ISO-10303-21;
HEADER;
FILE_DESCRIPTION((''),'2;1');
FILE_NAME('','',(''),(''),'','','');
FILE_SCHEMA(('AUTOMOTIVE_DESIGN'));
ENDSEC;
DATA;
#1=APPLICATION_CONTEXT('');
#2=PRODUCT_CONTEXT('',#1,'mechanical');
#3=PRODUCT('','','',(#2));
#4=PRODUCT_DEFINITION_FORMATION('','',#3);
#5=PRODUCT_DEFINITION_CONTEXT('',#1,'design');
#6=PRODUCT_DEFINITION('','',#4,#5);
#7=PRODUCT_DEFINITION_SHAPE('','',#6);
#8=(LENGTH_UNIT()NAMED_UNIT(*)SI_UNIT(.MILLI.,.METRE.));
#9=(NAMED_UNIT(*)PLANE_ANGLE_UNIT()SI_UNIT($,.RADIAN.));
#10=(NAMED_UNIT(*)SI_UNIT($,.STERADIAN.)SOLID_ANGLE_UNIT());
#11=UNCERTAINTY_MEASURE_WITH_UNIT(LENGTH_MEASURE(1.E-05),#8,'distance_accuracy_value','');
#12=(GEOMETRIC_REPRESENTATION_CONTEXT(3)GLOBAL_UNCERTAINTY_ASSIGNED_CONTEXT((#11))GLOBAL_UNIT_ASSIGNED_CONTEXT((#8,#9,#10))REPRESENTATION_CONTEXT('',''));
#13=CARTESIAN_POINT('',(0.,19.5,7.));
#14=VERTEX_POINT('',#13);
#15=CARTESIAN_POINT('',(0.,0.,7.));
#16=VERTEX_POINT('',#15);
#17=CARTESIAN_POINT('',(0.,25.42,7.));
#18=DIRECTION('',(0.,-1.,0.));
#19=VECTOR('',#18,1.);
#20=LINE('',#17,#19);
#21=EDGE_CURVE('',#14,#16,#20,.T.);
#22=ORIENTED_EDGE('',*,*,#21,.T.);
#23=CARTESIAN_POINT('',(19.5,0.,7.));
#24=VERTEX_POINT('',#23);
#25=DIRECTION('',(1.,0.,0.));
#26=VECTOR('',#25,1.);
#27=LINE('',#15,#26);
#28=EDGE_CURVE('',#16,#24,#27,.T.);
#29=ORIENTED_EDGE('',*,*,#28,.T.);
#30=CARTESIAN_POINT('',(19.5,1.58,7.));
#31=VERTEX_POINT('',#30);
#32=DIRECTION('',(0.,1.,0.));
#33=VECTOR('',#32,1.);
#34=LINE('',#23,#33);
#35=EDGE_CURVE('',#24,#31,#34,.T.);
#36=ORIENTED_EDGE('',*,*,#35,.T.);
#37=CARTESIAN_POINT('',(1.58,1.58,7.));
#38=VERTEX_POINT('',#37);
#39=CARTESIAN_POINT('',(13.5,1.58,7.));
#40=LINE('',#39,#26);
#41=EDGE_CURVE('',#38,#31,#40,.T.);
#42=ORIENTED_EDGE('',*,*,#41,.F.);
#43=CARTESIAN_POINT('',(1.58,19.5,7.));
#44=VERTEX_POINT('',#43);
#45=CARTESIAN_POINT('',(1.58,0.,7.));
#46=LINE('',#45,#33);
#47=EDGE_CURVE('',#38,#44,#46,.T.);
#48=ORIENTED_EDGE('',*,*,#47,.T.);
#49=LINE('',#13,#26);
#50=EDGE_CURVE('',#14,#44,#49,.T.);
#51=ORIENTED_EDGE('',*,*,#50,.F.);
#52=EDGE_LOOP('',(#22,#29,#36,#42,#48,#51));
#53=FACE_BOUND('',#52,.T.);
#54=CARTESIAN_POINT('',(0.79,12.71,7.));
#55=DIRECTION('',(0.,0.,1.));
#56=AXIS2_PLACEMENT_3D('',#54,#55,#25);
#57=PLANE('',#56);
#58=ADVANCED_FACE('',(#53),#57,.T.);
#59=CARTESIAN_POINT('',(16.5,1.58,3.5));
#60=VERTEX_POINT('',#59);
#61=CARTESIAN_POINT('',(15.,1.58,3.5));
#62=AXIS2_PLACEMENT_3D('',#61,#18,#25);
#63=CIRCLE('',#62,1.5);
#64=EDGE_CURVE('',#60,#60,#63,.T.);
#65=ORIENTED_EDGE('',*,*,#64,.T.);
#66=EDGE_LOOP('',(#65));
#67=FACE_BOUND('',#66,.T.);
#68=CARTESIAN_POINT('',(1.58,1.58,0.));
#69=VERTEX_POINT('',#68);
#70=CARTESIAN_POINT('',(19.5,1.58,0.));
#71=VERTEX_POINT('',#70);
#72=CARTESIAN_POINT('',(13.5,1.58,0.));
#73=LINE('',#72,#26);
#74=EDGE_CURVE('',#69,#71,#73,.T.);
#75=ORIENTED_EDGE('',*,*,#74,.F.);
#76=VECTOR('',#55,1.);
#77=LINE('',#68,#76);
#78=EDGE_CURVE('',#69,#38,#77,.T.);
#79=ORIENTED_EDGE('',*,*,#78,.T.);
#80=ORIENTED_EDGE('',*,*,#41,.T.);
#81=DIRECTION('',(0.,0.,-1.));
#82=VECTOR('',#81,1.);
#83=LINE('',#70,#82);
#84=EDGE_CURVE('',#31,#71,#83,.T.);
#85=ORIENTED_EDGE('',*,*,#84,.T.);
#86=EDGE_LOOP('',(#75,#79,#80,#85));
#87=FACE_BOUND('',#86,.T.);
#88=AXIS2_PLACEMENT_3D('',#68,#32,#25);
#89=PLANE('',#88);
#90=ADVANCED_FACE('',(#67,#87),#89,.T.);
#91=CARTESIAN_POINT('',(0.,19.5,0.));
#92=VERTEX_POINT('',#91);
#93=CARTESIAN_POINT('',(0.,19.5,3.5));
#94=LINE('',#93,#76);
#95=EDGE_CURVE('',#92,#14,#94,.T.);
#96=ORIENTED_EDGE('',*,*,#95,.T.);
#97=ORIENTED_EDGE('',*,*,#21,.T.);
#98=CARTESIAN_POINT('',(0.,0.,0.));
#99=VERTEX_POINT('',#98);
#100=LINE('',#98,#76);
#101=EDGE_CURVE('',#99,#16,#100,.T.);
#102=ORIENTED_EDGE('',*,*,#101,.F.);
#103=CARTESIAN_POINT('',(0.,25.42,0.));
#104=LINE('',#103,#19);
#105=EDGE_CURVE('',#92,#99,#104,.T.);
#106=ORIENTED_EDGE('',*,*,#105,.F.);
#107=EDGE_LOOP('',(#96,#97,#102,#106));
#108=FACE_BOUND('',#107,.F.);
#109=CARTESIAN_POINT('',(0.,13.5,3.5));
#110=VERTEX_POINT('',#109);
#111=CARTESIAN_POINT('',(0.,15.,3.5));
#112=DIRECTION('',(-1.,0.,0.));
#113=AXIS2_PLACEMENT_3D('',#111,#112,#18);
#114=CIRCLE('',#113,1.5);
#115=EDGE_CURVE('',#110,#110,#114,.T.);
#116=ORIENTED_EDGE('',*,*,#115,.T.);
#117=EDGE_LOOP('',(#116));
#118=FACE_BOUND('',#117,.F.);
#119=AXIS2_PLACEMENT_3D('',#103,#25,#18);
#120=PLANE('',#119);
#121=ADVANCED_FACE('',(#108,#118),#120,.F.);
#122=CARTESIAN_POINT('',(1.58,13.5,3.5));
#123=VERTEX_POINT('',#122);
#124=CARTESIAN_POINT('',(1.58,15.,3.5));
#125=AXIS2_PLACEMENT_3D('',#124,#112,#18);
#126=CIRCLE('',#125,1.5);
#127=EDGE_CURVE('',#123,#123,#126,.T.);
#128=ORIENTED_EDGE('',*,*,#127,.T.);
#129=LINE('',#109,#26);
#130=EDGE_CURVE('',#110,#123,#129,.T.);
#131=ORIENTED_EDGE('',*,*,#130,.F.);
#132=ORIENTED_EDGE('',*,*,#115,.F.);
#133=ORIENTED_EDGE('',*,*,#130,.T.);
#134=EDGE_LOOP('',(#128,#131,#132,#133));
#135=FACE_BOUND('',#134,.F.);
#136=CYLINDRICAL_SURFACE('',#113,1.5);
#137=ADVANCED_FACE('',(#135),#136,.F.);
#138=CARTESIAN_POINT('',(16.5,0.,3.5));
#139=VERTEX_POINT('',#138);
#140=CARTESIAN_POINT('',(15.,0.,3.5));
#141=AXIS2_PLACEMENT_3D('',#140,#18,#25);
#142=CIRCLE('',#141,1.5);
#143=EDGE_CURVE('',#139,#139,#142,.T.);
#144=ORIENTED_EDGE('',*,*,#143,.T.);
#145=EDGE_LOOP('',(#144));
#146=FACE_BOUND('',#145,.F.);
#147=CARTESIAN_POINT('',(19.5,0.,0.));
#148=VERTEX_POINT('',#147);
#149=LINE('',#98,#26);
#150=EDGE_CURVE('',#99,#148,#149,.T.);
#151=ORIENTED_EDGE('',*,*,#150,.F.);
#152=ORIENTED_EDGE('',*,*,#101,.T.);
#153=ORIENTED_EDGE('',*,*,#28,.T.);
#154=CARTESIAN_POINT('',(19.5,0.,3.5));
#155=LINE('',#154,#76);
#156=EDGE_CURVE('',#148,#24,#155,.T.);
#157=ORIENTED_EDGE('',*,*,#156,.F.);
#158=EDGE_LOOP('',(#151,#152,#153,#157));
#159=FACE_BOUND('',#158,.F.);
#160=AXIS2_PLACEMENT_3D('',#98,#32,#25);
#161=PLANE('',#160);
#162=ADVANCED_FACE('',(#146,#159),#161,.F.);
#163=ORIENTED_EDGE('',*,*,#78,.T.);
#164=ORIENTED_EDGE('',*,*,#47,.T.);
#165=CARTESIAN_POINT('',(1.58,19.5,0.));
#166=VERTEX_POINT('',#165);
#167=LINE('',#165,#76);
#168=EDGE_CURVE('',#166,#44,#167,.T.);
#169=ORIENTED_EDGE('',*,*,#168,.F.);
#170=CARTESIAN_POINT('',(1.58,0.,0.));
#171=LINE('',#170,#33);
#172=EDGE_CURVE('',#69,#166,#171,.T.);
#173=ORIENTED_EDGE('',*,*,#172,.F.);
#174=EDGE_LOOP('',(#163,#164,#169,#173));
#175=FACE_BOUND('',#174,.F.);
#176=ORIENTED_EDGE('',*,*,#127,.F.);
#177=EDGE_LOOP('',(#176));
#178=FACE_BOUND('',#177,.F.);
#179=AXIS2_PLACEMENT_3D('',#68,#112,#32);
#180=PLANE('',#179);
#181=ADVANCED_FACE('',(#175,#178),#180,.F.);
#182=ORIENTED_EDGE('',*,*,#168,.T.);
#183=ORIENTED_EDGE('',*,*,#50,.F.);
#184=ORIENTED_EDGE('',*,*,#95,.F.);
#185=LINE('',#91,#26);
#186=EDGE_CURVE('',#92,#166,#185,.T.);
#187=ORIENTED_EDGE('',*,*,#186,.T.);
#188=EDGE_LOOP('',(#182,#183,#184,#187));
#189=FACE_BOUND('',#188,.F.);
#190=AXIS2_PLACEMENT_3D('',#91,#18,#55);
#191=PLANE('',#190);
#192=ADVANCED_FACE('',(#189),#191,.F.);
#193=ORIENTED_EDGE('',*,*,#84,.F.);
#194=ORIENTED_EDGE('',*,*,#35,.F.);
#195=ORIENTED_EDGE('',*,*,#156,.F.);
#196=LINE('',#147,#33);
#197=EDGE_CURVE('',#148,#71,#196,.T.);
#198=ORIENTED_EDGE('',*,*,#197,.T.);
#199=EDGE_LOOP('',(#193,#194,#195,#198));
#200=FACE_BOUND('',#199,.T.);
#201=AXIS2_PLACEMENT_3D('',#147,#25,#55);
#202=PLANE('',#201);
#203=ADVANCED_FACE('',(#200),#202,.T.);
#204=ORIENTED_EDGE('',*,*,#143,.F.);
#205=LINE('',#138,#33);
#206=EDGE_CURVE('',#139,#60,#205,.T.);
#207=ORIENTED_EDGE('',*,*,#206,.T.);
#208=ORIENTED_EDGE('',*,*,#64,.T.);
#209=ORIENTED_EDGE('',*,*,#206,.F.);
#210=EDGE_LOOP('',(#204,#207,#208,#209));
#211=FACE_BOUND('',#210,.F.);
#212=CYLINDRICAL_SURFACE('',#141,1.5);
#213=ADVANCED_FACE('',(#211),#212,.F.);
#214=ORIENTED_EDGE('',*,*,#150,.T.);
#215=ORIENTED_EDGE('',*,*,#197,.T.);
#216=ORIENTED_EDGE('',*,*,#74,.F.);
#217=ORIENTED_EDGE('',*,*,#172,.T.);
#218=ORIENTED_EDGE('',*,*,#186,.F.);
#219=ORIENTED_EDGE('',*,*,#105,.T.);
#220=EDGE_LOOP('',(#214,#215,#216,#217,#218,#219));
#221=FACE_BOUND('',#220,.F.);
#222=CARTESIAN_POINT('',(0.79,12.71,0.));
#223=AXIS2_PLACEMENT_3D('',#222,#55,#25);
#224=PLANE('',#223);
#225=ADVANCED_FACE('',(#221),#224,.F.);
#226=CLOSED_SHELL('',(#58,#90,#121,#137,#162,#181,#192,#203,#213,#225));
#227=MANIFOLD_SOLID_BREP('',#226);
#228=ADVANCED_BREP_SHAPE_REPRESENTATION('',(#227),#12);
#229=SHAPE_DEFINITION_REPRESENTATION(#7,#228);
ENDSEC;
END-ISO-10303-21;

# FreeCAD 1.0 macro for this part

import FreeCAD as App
import Part
import Sketcher

doc = App.newDocument("Part")
body = doc.addObject("PartDesign::Body", "Body")

# Sketch on XY plane
sketch1 = doc.addObject("Sketcher::SketchObject", "Sketch")
body.addObject(sketch1)
sketch1.AttachmentSupport = (doc.XY_Plane, [""])
sketch1.MapMode = "FlatFace"
sketch1.addGeometry([
    Part.LineSegment(App.Vector(0, 25.4, 0), App.Vector(0, 0, 0)),  # 0
    Part.LineSegment(App.Vector(0, 0, 0), App.Vector(25.4, 0, 0)),  # 1
    Part.LineSegment(App.Vector(25.4, 0, 0), App.Vector(25.4, 1.6, 0)),  # 2
    Part.LineSegment(App.Vector(25.4, 1.6, 0), App.Vector(1.6, 1.6, 0)),  # 3
    Part.LineSegment(App.Vector(1.6, 1.6, 0), App.Vector(1.6, 25.4, 0)),  # 4
    Part.LineSegment(App.Vector(1.6, 25.4, 0), App.Vector(0, 25.4, 0)),  # 5
], False)
sketch1.addConstraint([
    Sketcher.Constraint("Coincident", 0, 2, 1, 1),
    Sketcher.Constraint("Coincident", 1, 2, 2, 1),
    Sketcher.Constraint("Coincident", 2, 2, 3, 1),
    Sketcher.Constraint("Coincident", 3, 2, 4, 1),
    Sketcher.Constraint("Coincident", 4, 2, 5, 1),
    Sketcher.Constraint("Coincident", 5, 2, 0, 1),
    Sketcher.Constraint("Vertical", 0),
    Sketcher.Constraint("Horizontal", 1),
    Sketcher.Constraint("Vertical", 2),
    Sketcher.Constraint("Horizontal", 3),
    Sketcher.Constraint("Vertical", 4),
    Sketcher.Constraint("Horizontal", 5),
    Sketcher.Constraint("Coincident", 0, 2, -1, 1),
    Sketcher.Constraint("Equal", 1, 0),
    Sketcher.Constraint("Equal", 5, 2),
    Sketcher.Constraint("DistanceX", 1, 1, 1, 2, 25.42),
    Sketcher.Constraint("DistanceX", 3, 2, 3, 1, 23.84),
])
pad1 = doc.addObject("PartDesign::Pad", "Pad")
body.addObject(pad1)
pad1.Profile = sketch1
pad1.Length = 7

# Sketch on YZ plane
sketch2 = doc.addObject("Sketcher::SketchObject", "Sketch001")
body.addObject(sketch2)
sketch2.AttachmentSupport = (doc.YZ_Plane, [""])
sketch2.MapMode = "FlatFace"
sketch2.addGeometry([
    Part.Circle(App.Vector(15, 3.5, 0), App.Vector(0, 0, 1), 1.5),  # 0
    Part.LineSegment(App.Vector(25.4, 7, 0), App.Vector(25.4, 0, 0)),  # 1
    Part.LineSegment(App.Vector(25.4, 0, 0), App.Vector(19.5, 0, 0)),  # 2
    Part.LineSegment(App.Vector(19.5, 0, 0), App.Vector(19.5, 7, 0)),  # 3
    Part.LineSegment(App.Vector(19.5, 7, 0), App.Vector(25.4, 7, 0)),  # 4
], False)
sketch2.addConstraint([
    Sketcher.Constraint("Coincident", 1, 2, 2, 1),
    Sketcher.Constraint("Coincident", 2, 2, 3, 1),
    Sketcher.Constraint("Coincident", 3, 2, 4, 1),
    Sketcher.Constraint("Coincident", 4, 2, 1, 1),
    Sketcher.Constraint("Vertical", 1),
    Sketcher.Constraint("Horizontal", 2),
    Sketcher.Constraint("Vertical", 3),
    Sketcher.Constraint("Horizontal", 4),
    Sketcher.Constraint("PointOnObject", 1, 2, -1),
    Sketcher.Constraint("Diameter", 0, 3.0),
    Sketcher.Constraint("DistanceY", 1, 2, 1, 1, 7.0),
    Sketcher.Constraint("DistanceX", -1, 1, 0, 3, 15.0),
    Sketcher.Constraint("DistanceX", 2, 2, 2, 1, 5.92),
    Sketcher.Constraint("DistanceY", -1, 1, 0, 3, 3.5),
    Sketcher.Constraint("DistanceX", -1, 1, 2, 2, 19.5),
])
pocket1 = doc.addObject("PartDesign::Pocket", "Pocket")
body.addObject(pocket1)
pocket1.Profile = sketch2
pocket1.Length = 25
pocket1.Reversed = True

# Sketch on XZ plane
sketch3 = doc.addObject("Sketcher::SketchObject", "Sketch002")
body.addObject(sketch3)
sketch3.AttachmentSupport = (doc.XZ_Plane, [""])
sketch3.MapMode = "FlatFace"
sketch3.addGeometry([
    Part.Circle(App.Vector(15, 3.5, 0), App.Vector(0, 0, 1), 1.5),  # 0
    Part.LineSegment(App.Vector(19.5, 7, 0), App.Vector(19.5, 0, 0)),  # 1
    Part.LineSegment(App.Vector(19.5, 0, 0), App.Vector(25.4, 0, 0)),  # 2
    Part.LineSegment(App.Vector(25.4, 0, 0), App.Vector(25.4, 7, 0)),  # 3
    Part.LineSegment(App.Vector(25.4, 7, 0), App.Vector(19.5, 7, 0)),  # 4
], False)
sketch3.addConstraint([
    Sketcher.Constraint("Coincident", 1, 2, 2, 1),
    Sketcher.Constraint("Coincident", 2, 2, 3, 1),
    Sketcher.Constraint("Coincident", 3, 2, 4, 1),
    Sketcher.Constraint("Coincident", 4, 2, 1, 1),
    Sketcher.Constraint("Vertical", 1),
    Sketcher.Constraint("Horizontal", 2),
    Sketcher.Constraint("Vertical", 3),
    Sketcher.Constraint("Horizontal", 4),
    Sketcher.Constraint("PointOnObject", 1, 2, -1),
    Sketcher.Constraint("Diameter", 0, 3.0),
    Sketcher.Constraint("DistanceY", 1, 2, 1, 1, 7.0),
    Sketcher.Constraint("DistanceX", -1, 1, 0, 3, 15.0),
    Sketcher.Constraint("DistanceX", 2, 1, 2, 2, 5.92),
    Sketcher.Constraint("DistanceY", -1, 1, 0, 3, 3.5),
    Sketcher.Constraint("DistanceX", -1, 1, 1, 2, 19.5),
])
pocket2 = doc.addObject("PartDesign::Pocket", "Pocket001")
body.addObject(pocket2)
pocket2.Profile = sketch3
pocket2.Length = 25

doc.recompute()
